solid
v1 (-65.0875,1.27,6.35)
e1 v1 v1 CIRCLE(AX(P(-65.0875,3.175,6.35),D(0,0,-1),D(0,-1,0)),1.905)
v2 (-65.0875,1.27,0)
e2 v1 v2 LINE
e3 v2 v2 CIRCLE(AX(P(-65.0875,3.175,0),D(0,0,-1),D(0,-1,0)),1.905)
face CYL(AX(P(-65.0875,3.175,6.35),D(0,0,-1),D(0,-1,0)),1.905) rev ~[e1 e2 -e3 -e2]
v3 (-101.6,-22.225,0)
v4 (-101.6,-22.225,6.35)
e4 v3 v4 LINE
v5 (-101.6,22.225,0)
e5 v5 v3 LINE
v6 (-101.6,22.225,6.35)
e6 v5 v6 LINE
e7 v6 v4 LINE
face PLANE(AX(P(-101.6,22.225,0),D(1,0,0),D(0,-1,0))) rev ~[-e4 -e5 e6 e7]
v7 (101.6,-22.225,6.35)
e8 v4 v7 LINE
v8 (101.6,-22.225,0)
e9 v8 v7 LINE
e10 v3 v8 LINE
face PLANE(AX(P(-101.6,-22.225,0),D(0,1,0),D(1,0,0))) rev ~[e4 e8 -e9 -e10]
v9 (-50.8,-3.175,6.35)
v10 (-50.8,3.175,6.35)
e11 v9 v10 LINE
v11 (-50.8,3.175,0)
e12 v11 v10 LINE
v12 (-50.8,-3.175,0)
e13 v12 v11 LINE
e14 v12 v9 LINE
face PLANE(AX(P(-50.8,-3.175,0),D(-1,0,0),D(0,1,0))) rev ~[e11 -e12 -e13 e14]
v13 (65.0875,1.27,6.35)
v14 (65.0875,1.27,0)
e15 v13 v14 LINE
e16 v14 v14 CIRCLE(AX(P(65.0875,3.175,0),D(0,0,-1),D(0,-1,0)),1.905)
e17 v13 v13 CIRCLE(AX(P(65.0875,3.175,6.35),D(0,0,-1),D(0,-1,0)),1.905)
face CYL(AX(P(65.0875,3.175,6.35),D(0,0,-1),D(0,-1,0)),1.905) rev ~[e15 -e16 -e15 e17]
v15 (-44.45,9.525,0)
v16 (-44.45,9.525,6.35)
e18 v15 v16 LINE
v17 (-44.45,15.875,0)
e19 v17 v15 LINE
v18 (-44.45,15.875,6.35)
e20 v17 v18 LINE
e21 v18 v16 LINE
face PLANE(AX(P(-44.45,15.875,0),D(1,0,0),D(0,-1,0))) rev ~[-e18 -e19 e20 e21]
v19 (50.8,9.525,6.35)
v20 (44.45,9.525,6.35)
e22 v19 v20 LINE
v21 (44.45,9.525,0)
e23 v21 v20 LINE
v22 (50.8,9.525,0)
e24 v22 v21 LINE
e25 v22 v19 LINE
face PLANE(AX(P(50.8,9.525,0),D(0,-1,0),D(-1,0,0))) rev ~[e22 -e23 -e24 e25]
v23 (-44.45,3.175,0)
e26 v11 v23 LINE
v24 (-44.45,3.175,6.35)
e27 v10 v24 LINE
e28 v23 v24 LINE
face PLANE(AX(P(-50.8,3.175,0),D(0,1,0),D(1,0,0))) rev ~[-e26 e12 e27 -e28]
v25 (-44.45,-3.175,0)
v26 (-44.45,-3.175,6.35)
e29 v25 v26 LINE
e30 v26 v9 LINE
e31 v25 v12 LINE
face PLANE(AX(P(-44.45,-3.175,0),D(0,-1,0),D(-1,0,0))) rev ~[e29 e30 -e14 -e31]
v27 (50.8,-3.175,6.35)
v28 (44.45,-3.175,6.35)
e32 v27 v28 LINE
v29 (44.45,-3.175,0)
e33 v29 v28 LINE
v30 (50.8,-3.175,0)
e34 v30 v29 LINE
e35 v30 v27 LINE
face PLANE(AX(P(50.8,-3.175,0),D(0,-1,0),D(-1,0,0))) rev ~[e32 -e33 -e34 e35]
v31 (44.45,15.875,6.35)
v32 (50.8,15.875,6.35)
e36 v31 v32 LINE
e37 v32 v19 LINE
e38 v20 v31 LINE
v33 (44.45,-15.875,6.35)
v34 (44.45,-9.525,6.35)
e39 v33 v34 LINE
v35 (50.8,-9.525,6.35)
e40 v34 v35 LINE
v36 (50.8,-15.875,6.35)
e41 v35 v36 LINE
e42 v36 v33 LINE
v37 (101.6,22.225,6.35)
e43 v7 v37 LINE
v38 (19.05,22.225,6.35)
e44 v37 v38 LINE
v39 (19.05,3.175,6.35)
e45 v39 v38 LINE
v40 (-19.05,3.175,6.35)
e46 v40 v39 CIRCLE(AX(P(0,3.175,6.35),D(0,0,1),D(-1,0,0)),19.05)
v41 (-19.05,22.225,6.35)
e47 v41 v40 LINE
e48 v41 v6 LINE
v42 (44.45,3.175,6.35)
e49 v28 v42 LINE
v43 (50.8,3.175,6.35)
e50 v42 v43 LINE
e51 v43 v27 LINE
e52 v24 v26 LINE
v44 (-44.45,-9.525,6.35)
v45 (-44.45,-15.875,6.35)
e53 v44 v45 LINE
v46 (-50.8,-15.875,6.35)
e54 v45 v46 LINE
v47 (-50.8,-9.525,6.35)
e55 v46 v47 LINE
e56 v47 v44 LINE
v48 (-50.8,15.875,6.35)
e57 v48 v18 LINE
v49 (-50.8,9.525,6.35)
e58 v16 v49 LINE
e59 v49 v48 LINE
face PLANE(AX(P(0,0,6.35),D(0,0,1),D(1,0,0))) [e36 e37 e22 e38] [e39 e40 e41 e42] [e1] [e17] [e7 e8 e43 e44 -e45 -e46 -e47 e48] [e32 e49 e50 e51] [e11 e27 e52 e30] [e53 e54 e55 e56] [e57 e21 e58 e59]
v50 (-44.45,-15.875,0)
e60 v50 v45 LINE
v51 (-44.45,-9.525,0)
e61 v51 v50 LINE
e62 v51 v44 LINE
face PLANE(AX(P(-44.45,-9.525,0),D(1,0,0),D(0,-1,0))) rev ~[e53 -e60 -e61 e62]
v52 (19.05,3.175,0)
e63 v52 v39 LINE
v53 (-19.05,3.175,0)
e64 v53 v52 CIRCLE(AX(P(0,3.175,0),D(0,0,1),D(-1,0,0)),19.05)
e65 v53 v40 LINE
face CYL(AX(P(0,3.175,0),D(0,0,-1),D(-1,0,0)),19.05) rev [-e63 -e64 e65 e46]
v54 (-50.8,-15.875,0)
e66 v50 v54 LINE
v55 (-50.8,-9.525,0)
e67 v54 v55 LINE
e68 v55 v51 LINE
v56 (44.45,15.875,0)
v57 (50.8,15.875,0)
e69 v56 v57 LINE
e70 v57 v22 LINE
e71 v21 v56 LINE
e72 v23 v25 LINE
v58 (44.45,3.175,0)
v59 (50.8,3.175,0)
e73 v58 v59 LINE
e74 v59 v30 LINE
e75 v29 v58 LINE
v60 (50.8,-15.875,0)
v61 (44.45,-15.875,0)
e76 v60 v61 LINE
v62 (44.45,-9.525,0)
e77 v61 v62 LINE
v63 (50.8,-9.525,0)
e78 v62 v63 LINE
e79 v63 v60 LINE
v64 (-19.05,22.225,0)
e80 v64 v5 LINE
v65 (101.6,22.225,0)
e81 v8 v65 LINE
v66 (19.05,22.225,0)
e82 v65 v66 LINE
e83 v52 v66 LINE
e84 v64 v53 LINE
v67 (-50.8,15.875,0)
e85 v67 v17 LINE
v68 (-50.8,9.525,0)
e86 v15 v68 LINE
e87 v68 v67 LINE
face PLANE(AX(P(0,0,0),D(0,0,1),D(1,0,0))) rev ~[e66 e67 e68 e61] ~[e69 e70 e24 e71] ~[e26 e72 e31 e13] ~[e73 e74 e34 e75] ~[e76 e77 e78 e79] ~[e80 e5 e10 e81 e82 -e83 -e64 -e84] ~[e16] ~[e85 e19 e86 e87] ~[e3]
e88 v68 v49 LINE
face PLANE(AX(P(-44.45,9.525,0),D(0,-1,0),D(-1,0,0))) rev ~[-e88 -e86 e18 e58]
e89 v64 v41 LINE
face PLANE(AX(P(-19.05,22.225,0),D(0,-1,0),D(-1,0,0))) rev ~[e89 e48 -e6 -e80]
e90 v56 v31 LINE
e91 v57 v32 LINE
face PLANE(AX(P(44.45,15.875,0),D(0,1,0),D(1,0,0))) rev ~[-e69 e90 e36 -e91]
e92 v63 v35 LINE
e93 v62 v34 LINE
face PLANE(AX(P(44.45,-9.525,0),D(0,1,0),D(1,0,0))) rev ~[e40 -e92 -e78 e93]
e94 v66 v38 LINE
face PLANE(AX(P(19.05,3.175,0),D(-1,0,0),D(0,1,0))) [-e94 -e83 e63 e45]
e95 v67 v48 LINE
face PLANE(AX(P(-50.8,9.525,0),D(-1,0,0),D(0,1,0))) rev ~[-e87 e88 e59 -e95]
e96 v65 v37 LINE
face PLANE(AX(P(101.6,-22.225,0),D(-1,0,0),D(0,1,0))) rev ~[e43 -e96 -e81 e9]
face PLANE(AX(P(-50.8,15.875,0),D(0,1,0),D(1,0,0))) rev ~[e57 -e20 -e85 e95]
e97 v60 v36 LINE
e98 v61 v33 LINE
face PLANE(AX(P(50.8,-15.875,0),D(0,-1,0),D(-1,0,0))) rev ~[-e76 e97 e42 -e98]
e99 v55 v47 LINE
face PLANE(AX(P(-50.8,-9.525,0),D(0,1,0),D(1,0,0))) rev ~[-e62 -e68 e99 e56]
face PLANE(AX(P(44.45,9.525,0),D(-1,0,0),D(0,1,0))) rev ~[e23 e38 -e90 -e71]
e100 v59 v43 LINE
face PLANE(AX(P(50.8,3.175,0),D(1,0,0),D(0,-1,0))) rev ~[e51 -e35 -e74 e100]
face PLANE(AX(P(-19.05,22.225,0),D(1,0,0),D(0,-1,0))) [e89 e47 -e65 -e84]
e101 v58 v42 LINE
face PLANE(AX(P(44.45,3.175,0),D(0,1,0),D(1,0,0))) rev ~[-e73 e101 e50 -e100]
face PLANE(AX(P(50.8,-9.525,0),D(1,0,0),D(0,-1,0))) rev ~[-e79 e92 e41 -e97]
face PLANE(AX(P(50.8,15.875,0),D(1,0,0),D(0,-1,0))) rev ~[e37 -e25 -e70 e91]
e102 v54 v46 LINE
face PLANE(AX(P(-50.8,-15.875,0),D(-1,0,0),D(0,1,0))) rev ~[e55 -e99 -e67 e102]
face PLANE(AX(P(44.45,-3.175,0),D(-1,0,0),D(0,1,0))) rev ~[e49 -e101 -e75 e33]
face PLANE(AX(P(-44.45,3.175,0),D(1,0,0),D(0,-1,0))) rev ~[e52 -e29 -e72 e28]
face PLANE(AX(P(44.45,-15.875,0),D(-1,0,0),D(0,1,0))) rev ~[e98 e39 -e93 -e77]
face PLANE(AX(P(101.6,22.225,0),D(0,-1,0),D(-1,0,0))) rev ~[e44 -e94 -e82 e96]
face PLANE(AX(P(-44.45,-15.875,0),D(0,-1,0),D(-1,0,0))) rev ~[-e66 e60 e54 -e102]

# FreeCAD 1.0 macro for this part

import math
import FreeCAD as App
import Part
import Sketcher

V = App.Vector
Q = App.Units.Quantity

doc = App.newDocument("Part")
body = doc.addObject("PartDesign::Body", "Body")

sketch1 = body.newObject("Sketcher::SketchObject", "Sketch")
sketch1.AttachmentSupport = (doc.getObject("XY_Plane"), [""])
sketch1.MapMode = "FlatFace"
sketch1.addGeometry([
    Part.LineSegment(V(-102, 22, 0), V(-102, -22, 0)),
    Part.LineSegment(V(-102, -22, 0), V(102, -22, 0)),
    Part.LineSegment(V(102, -22, 0), V(102, 22, 0)),
    Part.LineSegment(V(102, 22, 0), V(19, 22, 0)),
    Part.LineSegment(V(19, 22, 0), V(19, 3, 0)),
    Part.ArcOfCircle(Part.Circle(V(0, 3, 0), V(0, 0, 1), 19), math.radians(180), math.radians(360)),
    Part.LineSegment(V(-19, 3, 0), V(-19, 22, 0)),
    Part.LineSegment(V(-19, 22, 0), V(-102, 22, 0)),
    Part.LineSegment(V(-51, -16, 0), V(-51, -10, 0)),
    Part.LineSegment(V(-51, -10, 0), V(-44, -10, 0)),
    Part.LineSegment(V(-44, -10, 0), V(-44, -16, 0)),
    Part.LineSegment(V(-44, -16, 0), V(-51, -16, 0)),
    Part.LineSegment(V(44, -16, 0), V(44, -10, 0)),
    Part.LineSegment(V(44, -10, 0), V(51, -10, 0)),
    Part.LineSegment(V(51, -10, 0), V(51, -16, 0)),
    Part.LineSegment(V(51, -16, 0), V(44, -16, 0)),
    Part.LineSegment(V(-51, -3, 0), V(-51, 3, 0)),
    Part.LineSegment(V(-51, 3, 0), V(-44, 3, 0)),
    Part.LineSegment(V(-44, 3, 0), V(-44, -3, 0)),
    Part.LineSegment(V(-44, -3, 0), V(-51, -3, 0)),
    Part.LineSegment(V(-51, 10, 0), V(-51, 16, 0)),
    Part.LineSegment(V(-51, 16, 0), V(-44, 16, 0)),
    Part.LineSegment(V(-44, 16, 0), V(-44, 10, 0)),
    Part.LineSegment(V(-44, 10, 0), V(-51, 10, 0)),
    Part.LineSegment(V(44, -3, 0), V(44, 3, 0)),
    Part.LineSegment(V(44, 3, 0), V(51, 3, 0)),
    Part.LineSegment(V(51, 3, 0), V(51, -3, 0)),
    Part.LineSegment(V(51, -3, 0), V(44, -3, 0)),
    Part.LineSegment(V(44, 10, 0), V(44, 16, 0)),
    Part.LineSegment(V(44, 16, 0), V(51, 16, 0)),
    Part.LineSegment(V(51, 16, 0), V(51, 10, 0)),
    Part.LineSegment(V(51, 10, 0), V(44, 10, 0)),
], False)
sketch1.addConstraint([
    Sketcher.Constraint("Coincident", 0, 2, 1, 1),
    Sketcher.Constraint("Coincident", 1, 2, 2, 1),
    Sketcher.Constraint("Coincident", 2, 2, 3, 1),
    Sketcher.Constraint("Coincident", 3, 2, 4, 1),
    Sketcher.Constraint("Tangent", 4, 2, 5, 2),
    Sketcher.Constraint("Tangent", 5, 1, 6, 1),
    Sketcher.Constraint("Coincident", 6, 2, 7, 1),
    Sketcher.Constraint("Coincident", 7, 2, 0, 1),
    Sketcher.Constraint("Coincident", 8, 2, 9, 1),
    Sketcher.Constraint("Coincident", 9, 2, 10, 1),
    Sketcher.Constraint("Coincident", 10, 2, 11, 1),
    Sketcher.Constraint("Coincident", 11, 2, 8, 1),
    Sketcher.Constraint("Coincident", 12, 2, 13, 1),
    Sketcher.Constraint("Coincident", 13, 2, 14, 1),
    Sketcher.Constraint("Coincident", 14, 2, 15, 1),
    Sketcher.Constraint("Coincident", 15, 2, 12, 1),
    Sketcher.Constraint("Coincident", 16, 2, 17, 1),
    Sketcher.Constraint("Coincident", 17, 2, 18, 1),
    Sketcher.Constraint("Coincident", 18, 2, 19, 1),
    Sketcher.Constraint("Coincident", 19, 2, 16, 1),
    Sketcher.Constraint("Coincident", 20, 2, 21, 1),
    Sketcher.Constraint("Coincident", 21, 2, 22, 1),
    Sketcher.Constraint("Coincident", 22, 2, 23, 1),
    Sketcher.Constraint("Coincident", 23, 2, 20, 1),
    Sketcher.Constraint("Coincident", 24, 2, 25, 1),
    Sketcher.Constraint("Coincident", 25, 2, 26, 1),
    Sketcher.Constraint("Coincident", 26, 2, 27, 1),
    Sketcher.Constraint("Coincident", 27, 2, 24, 1),
    Sketcher.Constraint("Coincident", 28, 2, 29, 1),
    Sketcher.Constraint("Coincident", 29, 2, 30, 1),
    Sketcher.Constraint("Coincident", 30, 2, 31, 1),
    Sketcher.Constraint("Coincident", 31, 2, 28, 1),
    Sketcher.Constraint("Vertical", 0),
    Sketcher.Constraint("Horizontal", 1),
    Sketcher.Constraint("Vertical", 2),
    Sketcher.Constraint("Horizontal", 3),
    Sketcher.Constraint("Vertical", 4),
    Sketcher.Constraint("Vertical", 6),
    Sketcher.Constraint("Horizontal", 7),
    Sketcher.Constraint("Vertical", 8),
    Sketcher.Constraint("Horizontal", 9),
    Sketcher.Constraint("Vertical", 10),
    Sketcher.Constraint("Horizontal", 11),
    Sketcher.Constraint("Vertical", 12),
    Sketcher.Constraint("Horizontal", 13),
    Sketcher.Constraint("Vertical", 14),
    Sketcher.Constraint("Horizontal", 15),
    Sketcher.Constraint("Vertical", 16),
    Sketcher.Constraint("Horizontal", 17),
    Sketcher.Constraint("Vertical", 18),
    Sketcher.Constraint("Horizontal", 19),
    Sketcher.Constraint("Vertical", 20),
    Sketcher.Constraint("Horizontal", 21),
    Sketcher.Constraint("Vertical", 22),
    Sketcher.Constraint("Horizontal", 23),
    Sketcher.Constraint("Vertical", 24),
    Sketcher.Constraint("Horizontal", 25),
    Sketcher.Constraint("Vertical", 26),
    Sketcher.Constraint("Horizontal", 27),
    Sketcher.Constraint("Vertical", 28),
    Sketcher.Constraint("Horizontal", 29),
    Sketcher.Constraint("Vertical", 30),
    Sketcher.Constraint("Horizontal", 31),
    Sketcher.Constraint("Symmetric", 0, 2, 2, 2, -1, 1),
    Sketcher.Constraint("Symmetric", 14, 2, 20, 2, -1, 1),
    Sketcher.Constraint("Symmetric", 12, 2, 22, 2, -1, 1),
    Sketcher.Constraint("Symmetric", 18, 2, 24, 2, -1, 1),
    Sketcher.Constraint("Symmetric", 16, 2, 26, 2, -1, 1),
    Sketcher.Constraint("Symmetric", 10, 2, 28, 2, -1, 1),
    Sketcher.Constraint("Symmetric", 8, 2, 30, 2, -1, 1),
    Sketcher.Constraint("Symmetric", 3, 2, 6, 2, -2),
    Sketcher.Constraint("Symmetric", 9, 2, 12, 2, -2),
    Sketcher.Constraint("Symmetric", 11, 2, 14, 2, -2),
    Sketcher.Constraint("Horizontal", 5, 1, 16, 2),
    Sketcher.Constraint("Horizontal", 17, 2, 24, 2),
    Sketcher.Constraint("Vertical", 11, 2, 16, 2),
    Sketcher.Constraint("Vertical", 10, 2, 17, 2),
    Sketcher.Constraint("Equal", 31, 8),
    Sketcher.Constraint("Equal", 14, 16),
    Sketcher.Constraint("DistanceX", 1, 1, 1, 2, Q("8 in")),
    Sketcher.Constraint("Radius", 5, Q("0.75 in")),
    Sketcher.Constraint("DistanceX", 9, 1, 9, 2, Q("0.25 in")),
    Sketcher.Constraint("DistanceY", 0, 2, 0, 1, Q("1.75 in")),
    Sketcher.Constraint("DistanceY", 8, 2, 5, 1, Q("0.5 in")),
    Sketcher.Constraint("DistanceX", 9, 2, -1, 1, Q("1.75 in")),
])
pad1 = body.newObject("PartDesign::Pad", "Pad")
pad1.Profile = sketch1
pad1.Length = Q("0.25 in")

sketch2 = body.newObject("Sketcher::SketchObject", "Sketch001")
sketch2.AttachmentSupport = (doc.getObject("XY_Plane"), [""])
sketch2.MapMode = "FlatFace"
sketch2.AttachmentOffset = App.Placement(V(0, 0, 0.25 * 25.4), App.Rotation())
sketch2.addGeometry([
    Part.Circle(V(-65.1, 3.2, 0), V(0, 0, 1), 1.9),
    Part.Circle(V(65.1, 3.2, 0), V(0, 0, 1), 1.9),
], False)
sketch2.addConstraint([
    Sketcher.Constraint("Equal", 0, 1),
    Sketcher.Constraint("Symmetric", 0, 3, 1, 3, -2),
    Sketcher.Constraint("Diameter", 0, Q("0.15 in")),
    Sketcher.Constraint("DistanceX", 0, 3, -1, 1, Q("2.5625 in")),
    Sketcher.Constraint("DistanceY", -1, 1, 0, 3, Q("0.125 in")),
])
doc.recompute()
hole = body.newObject("PartDesign::Hole", "Hole")
hole.Profile = sketch2
hole.ThreadType = "None"
hole.Diameter = Q("0.15 in")
hole.DepthType = "ThroughAll"

doc.recompute()
